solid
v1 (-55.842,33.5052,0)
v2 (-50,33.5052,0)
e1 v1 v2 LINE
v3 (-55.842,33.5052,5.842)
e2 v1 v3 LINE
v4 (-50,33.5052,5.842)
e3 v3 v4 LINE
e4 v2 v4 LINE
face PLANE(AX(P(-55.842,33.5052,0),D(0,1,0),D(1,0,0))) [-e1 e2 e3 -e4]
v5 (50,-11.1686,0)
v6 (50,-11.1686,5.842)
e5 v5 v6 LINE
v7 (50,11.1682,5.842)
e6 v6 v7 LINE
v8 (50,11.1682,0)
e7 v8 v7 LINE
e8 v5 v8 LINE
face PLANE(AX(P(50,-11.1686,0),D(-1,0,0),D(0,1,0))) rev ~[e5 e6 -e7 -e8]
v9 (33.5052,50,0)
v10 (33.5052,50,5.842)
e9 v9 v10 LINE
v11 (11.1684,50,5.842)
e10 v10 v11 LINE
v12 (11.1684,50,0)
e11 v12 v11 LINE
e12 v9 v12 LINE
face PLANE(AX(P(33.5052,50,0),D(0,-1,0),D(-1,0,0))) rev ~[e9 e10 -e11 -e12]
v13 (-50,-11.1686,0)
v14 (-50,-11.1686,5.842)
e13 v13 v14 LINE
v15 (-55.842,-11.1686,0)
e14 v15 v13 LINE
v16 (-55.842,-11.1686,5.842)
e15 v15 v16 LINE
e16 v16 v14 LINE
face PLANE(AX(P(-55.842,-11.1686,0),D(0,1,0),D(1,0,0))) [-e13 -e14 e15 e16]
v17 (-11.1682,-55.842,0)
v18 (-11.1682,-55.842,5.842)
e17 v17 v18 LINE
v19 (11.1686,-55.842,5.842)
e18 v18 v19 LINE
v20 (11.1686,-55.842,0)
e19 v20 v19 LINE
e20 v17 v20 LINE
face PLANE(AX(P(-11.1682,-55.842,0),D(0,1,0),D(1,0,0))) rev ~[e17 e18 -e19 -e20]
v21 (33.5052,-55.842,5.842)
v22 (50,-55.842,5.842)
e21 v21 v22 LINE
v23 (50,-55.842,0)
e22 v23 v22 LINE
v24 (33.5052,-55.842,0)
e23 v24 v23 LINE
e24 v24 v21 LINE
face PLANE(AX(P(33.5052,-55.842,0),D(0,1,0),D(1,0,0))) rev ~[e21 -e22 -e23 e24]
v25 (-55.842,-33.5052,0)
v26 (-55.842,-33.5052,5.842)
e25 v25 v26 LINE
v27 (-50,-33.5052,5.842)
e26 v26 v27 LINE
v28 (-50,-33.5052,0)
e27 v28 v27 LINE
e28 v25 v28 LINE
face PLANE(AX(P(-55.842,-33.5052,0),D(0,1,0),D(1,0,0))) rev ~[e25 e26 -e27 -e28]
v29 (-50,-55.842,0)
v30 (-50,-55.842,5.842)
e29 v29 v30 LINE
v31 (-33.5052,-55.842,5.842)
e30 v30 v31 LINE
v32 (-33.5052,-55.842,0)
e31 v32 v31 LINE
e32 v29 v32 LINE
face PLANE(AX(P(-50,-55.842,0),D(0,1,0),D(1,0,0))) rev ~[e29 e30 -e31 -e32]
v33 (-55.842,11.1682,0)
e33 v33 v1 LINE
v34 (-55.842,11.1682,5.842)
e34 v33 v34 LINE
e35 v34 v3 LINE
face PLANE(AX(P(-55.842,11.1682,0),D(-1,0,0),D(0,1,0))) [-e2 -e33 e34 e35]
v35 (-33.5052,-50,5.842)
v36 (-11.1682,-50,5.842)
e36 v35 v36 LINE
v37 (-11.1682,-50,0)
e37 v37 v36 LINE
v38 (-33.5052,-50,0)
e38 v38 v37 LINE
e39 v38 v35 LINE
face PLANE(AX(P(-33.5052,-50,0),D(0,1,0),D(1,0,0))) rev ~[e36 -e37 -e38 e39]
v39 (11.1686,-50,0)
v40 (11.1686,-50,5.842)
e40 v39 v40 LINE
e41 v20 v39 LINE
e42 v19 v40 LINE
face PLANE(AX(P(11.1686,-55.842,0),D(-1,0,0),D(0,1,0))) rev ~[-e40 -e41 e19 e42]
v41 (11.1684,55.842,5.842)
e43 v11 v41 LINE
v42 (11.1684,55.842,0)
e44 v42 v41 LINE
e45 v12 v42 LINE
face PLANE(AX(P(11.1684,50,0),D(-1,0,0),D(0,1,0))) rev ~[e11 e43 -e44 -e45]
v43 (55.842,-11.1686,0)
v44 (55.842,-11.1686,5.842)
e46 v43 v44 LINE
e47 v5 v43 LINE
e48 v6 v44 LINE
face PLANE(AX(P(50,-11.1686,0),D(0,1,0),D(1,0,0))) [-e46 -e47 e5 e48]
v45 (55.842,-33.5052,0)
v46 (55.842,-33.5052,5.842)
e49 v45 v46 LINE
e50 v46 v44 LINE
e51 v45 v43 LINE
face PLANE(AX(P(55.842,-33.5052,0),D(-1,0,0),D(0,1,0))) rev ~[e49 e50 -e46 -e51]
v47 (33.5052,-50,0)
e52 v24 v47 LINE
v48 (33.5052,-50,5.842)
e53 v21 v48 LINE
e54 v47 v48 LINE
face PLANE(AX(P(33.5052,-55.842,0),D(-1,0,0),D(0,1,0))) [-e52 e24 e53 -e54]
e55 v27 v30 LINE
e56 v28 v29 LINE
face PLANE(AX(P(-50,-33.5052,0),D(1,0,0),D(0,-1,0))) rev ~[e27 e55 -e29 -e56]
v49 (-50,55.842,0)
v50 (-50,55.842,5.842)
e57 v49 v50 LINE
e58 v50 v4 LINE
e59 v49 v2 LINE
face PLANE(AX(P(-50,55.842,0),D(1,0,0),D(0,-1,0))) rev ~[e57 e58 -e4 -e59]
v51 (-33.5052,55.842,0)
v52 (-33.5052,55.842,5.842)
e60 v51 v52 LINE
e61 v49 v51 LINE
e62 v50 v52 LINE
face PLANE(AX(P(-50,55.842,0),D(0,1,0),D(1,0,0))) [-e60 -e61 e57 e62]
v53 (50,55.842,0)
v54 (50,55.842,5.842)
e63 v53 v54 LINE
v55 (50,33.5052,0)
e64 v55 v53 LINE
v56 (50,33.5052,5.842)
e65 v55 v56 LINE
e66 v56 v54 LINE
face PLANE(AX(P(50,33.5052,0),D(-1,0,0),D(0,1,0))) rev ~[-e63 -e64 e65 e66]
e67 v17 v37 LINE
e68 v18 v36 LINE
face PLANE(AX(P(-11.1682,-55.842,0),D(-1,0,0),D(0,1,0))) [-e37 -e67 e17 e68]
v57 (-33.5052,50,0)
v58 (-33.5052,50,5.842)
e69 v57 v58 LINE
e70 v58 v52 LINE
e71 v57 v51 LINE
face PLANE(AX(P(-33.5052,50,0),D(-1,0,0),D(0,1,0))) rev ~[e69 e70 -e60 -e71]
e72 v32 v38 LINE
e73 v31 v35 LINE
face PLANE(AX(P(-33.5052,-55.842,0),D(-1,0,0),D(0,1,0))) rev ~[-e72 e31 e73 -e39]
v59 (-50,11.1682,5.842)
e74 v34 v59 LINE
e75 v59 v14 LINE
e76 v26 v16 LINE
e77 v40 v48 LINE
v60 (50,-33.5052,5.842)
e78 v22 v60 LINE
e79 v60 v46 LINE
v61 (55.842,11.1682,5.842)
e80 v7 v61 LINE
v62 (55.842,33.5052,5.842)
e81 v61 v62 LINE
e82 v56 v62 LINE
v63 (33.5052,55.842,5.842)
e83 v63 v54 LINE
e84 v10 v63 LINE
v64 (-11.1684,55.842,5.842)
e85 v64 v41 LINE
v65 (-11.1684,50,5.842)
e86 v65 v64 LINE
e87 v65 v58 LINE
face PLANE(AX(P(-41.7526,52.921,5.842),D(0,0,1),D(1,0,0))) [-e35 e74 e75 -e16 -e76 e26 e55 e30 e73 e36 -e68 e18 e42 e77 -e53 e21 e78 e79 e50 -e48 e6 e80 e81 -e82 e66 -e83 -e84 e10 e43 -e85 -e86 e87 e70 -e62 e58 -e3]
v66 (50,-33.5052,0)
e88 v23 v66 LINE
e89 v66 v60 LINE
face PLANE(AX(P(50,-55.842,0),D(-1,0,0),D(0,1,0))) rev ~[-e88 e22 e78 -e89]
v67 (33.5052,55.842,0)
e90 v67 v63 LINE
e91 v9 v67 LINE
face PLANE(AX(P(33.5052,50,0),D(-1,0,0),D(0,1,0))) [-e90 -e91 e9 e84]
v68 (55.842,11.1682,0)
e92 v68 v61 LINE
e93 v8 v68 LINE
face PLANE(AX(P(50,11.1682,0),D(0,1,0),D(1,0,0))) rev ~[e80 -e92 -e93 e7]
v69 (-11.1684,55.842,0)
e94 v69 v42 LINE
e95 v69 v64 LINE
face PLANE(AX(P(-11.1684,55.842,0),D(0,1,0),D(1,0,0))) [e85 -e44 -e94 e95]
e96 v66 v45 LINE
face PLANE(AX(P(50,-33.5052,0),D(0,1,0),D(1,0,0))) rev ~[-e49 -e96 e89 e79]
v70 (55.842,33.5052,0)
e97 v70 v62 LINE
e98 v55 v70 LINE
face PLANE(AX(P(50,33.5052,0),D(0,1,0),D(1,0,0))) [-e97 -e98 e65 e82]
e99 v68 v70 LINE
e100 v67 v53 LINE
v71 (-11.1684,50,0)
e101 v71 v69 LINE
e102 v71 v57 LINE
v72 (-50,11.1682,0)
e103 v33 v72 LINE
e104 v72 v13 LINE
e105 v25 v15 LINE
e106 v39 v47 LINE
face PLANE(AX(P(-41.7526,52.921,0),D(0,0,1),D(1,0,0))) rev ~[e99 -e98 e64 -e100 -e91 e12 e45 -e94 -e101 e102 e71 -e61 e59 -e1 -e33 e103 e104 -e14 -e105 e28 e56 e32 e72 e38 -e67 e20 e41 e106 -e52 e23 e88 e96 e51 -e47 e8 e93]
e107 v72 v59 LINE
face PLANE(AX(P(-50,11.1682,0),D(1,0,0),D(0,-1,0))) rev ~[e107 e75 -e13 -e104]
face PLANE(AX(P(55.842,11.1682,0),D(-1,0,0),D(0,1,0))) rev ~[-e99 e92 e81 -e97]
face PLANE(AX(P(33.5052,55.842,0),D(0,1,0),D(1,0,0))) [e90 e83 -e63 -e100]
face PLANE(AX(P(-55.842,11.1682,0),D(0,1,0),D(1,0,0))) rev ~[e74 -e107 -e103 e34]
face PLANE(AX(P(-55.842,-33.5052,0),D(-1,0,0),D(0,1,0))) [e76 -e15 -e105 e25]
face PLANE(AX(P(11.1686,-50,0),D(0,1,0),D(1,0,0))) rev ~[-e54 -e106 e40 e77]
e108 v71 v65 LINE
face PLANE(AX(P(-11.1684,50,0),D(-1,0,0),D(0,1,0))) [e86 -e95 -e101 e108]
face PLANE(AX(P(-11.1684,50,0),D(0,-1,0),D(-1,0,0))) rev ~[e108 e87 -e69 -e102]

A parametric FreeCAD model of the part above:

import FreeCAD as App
import Part
import Sketcher
Q = App.Units.Quantity

doc = App.newDocument("Part")
body = doc.addObject("PartDesign::Body", "Body")

# Sketch on XY plane
sketch1 = doc.addObject("Sketcher::SketchObject", "Sketch")
body.addObject(sketch1)
sketch1.AttachmentSupport = (doc.XY_Plane, [""])
sketch1.MapMode = "FlatFace"
sketch1.addGeometry([
    Part.LineSegment(App.Vector(-50, 56, 0), App.Vector(-50, 34, 0)),  # 0
    Part.LineSegment(App.Vector(-50, 34, 0), App.Vector(-56, 34, 0)),  # 1
    Part.LineSegment(App.Vector(-56, 34, 0), App.Vector(-56, 11, 0)),  # 2
    Part.LineSegment(App.Vector(-56, 11, 0), App.Vector(-50, 11, 0)),  # 3
    Part.LineSegment(App.Vector(-50, 11, 0), App.Vector(-50, -11, 0)),  # 4
    Part.LineSegment(App.Vector(-50, -11, 0), App.Vector(-56, -11, 0)),  # 5
    Part.LineSegment(App.Vector(-56, -11, 0), App.Vector(-56, -34, 0)),  # 6
    Part.LineSegment(App.Vector(-56, -34, 0), App.Vector(-50, -34, 0)),  # 7
    Part.LineSegment(App.Vector(-50, -34, 0), App.Vector(-50, -56, 0)),  # 8
    Part.LineSegment(App.Vector(-50, -56, 0), App.Vector(-34, -56, 0)),  # 9
    Part.LineSegment(App.Vector(-34, -56, 0), App.Vector(-34, -50, 0)),  # 10
    Part.LineSegment(App.Vector(-34, -50, 0), App.Vector(-11, -50, 0)),  # 11
    Part.LineSegment(App.Vector(-11, -50, 0), App.Vector(-11, -56, 0)),  # 12
    Part.LineSegment(App.Vector(-11, -56, 0), App.Vector(11, -56, 0)),  # 13
    Part.LineSegment(App.Vector(11, -56, 0), App.Vector(11, -50, 0)),  # 14
    Part.LineSegment(App.Vector(11, -50, 0), App.Vector(34, -50, 0)),  # 15
    Part.LineSegment(App.Vector(34, -50, 0), App.Vector(34, -56, 0)),  # 16
    Part.LineSegment(App.Vector(34, -56, 0), App.Vector(50, -56, 0)),  # 17
    Part.LineSegment(App.Vector(50, -56, 0), App.Vector(50, -34, 0)),  # 18
    Part.LineSegment(App.Vector(50, -34, 0), App.Vector(56, -34, 0)),  # 19
    Part.LineSegment(App.Vector(56, -34, 0), App.Vector(56, -11, 0)),  # 20
    Part.LineSegment(App.Vector(56, -11, 0), App.Vector(50, -11, 0)),  # 21
    Part.LineSegment(App.Vector(50, -11, 0), App.Vector(50, 11, 0)),  # 22
    Part.LineSegment(App.Vector(50, 11, 0), App.Vector(56, 11, 0)),  # 23
    Part.LineSegment(App.Vector(56, 11, 0), App.Vector(56, 34, 0)),  # 24
    Part.LineSegment(App.Vector(56, 34, 0), App.Vector(50, 34, 0)),  # 25
    Part.LineSegment(App.Vector(50, 34, 0), App.Vector(50, 56, 0)),  # 26
    Part.LineSegment(App.Vector(50, 56, 0), App.Vector(34, 56, 0)),  # 27
    Part.LineSegment(App.Vector(34, 56, 0), App.Vector(34, 50, 0)),  # 28
    Part.LineSegment(App.Vector(34, 50, 0), App.Vector(11, 50, 0)),  # 29
    Part.LineSegment(App.Vector(11, 50, 0), App.Vector(11, 56, 0)),  # 30
    Part.LineSegment(App.Vector(11, 56, 0), App.Vector(-11, 56, 0)),  # 31
    Part.LineSegment(App.Vector(-11, 56, 0), App.Vector(-11, 50, 0)),  # 32
    Part.LineSegment(App.Vector(-11, 50, 0), App.Vector(-34, 50, 0)),  # 33
    Part.LineSegment(App.Vector(-34, 50, 0), App.Vector(-34, 56, 0)),  # 34
    Part.LineSegment(App.Vector(-34, 56, 0), App.Vector(-50, 56, 0)),  # 35
], False)
sketch1.addConstraint([
    Sketcher.Constraint("Coincident", 0, 2, 1, 1),
    Sketcher.Constraint("Coincident", 1, 2, 2, 1),
    Sketcher.Constraint("Coincident", 2, 2, 3, 1),
    Sketcher.Constraint("Coincident", 3, 2, 4, 1),
    Sketcher.Constraint("Coincident", 4, 2, 5, 1),
    Sketcher.Constraint("Coincident", 5, 2, 6, 1),
    Sketcher.Constraint("Coincident", 6, 2, 7, 1),
    Sketcher.Constraint("Coincident", 7, 2, 8, 1),
    Sketcher.Constraint("Coincident", 8, 2, 9, 1),
    Sketcher.Constraint("Coincident", 9, 2, 10, 1),
    Sketcher.Constraint("Coincident", 10, 2, 11, 1),
    Sketcher.Constraint("Coincident", 11, 2, 12, 1),
    Sketcher.Constraint("Coincident", 12, 2, 13, 1),
    Sketcher.Constraint("Coincident", 13, 2, 14, 1),
    Sketcher.Constraint("Coincident", 14, 2, 15, 1),
    Sketcher.Constraint("Coincident", 15, 2, 16, 1),
    Sketcher.Constraint("Coincident", 16, 2, 17, 1),
    Sketcher.Constraint("Coincident", 17, 2, 18, 1),
    Sketcher.Constraint("Coincident", 18, 2, 19, 1),
    Sketcher.Constraint("Coincident", 19, 2, 20, 1),
    Sketcher.Constraint("Coincident", 20, 2, 21, 1),
    Sketcher.Constraint("Coincident", 21, 2, 22, 1),
    Sketcher.Constraint("Coincident", 22, 2, 23, 1),
    Sketcher.Constraint("Coincident", 23, 2, 24, 1),
    Sketcher.Constraint("Coincident", 24, 2, 25, 1),
    Sketcher.Constraint("Coincident", 25, 2, 26, 1),
    Sketcher.Constraint("Coincident", 26, 2, 27, 1),
    Sketcher.Constraint("Coincident", 27, 2, 28, 1),
    Sketcher.Constraint("Coincident", 28, 2, 29, 1),
    Sketcher.Constraint("Coincident", 29, 2, 30, 1),
    Sketcher.Constraint("Coincident", 30, 2, 31, 1),
    Sketcher.Constraint("Coincident", 31, 2, 32, 1),
    Sketcher.Constraint("Coincident", 32, 2, 33, 1),
    Sketcher.Constraint("Coincident", 33, 2, 34, 1),
    Sketcher.Constraint("Coincident", 34, 2, 35, 1),
    Sketcher.Constraint("Coincident", 35, 2, 0, 1),
    Sketcher.Constraint("Vertical", 0),
    Sketcher.Constraint("Horizontal", 1),
    Sketcher.Constraint("Vertical", 2),
    Sketcher.Constraint("Horizontal", 3),
    Sketcher.Constraint("Vertical", 4),
    Sketcher.Constraint("Horizontal", 5),
    Sketcher.Constraint("Vertical", 6),
    Sketcher.Constraint("Horizontal", 7),
    Sketcher.Constraint("Vertical", 8),
    Sketcher.Constraint("Horizontal", 9),
    Sketcher.Constraint("Vertical", 10),
    Sketcher.Constraint("Horizontal", 11),
    Sketcher.Constraint("Vertical", 12),
    Sketcher.Constraint("Horizontal", 13),
    Sketcher.Constraint("Vertical", 14),
    Sketcher.Constraint("Horizontal", 15),
    Sketcher.Constraint("Vertical", 16),
    Sketcher.Constraint("Horizontal", 17),
    Sketcher.Constraint("Vertical", 18),
    Sketcher.Constraint("Horizontal", 19),
    Sketcher.Constraint("Vertical", 20),
    Sketcher.Constraint("Horizontal", 21),
    Sketcher.Constraint("Vertical", 22),
    Sketcher.Constraint("Horizontal", 23),
    Sketcher.Constraint("Vertical", 24),
    Sketcher.Constraint("Horizontal", 25),
    Sketcher.Constraint("Vertical", 26),
    Sketcher.Constraint("Horizontal", 27),
    Sketcher.Constraint("Vertical", 28),
    Sketcher.Constraint("Horizontal", 29),
    Sketcher.Constraint("Vertical", 30),
    Sketcher.Constraint("Horizontal", 31),
    Sketcher.Constraint("Vertical", 32),
    Sketcher.Constraint("Horizontal", 33),
    Sketcher.Constraint("Vertical", 34),
    Sketcher.Constraint("Horizontal", 35),
    Sketcher.Constraint("Symmetric", 0, 2, 18, 2, -1, 1),
    Sketcher.Constraint("Symmetric", 6, 2, 24, 2, -1, 1),
    Sketcher.Constraint("Symmetric", 8, 2, 26, 2, -1, 1),
    Sketcher.Constraint("Symmetric", 10, 2, 28, 2, -1, 1),
    Sketcher.Constraint("Symmetric", 15, 2, 33, 2, -1, 1),
    Sketcher.Constraint("Symmetric", 10, 2, 15, 2, -2),
    Sketcher.Constraint("Symmetric", 8, 2, 17, 2, -2),
    Sketcher.Constraint("Symmetric", 6, 2, 19, 2, -2),
    Sketcher.Constraint("Symmetric", 4, 2, 21, 2, -2),
    Sketcher.Constraint("Symmetric", 2, 2, 23, 2, -2),
    Sketcher.Constraint("Horizontal", 9, 2, 12, 2),
    Sketcher.Constraint("Horizontal", 27, 2, 30, 2),
    Sketcher.Constraint("Horizontal", 31, 2, 34, 2),
    Sketcher.Constraint("Vertical", 0, 2, 3, 2),
    Sketcher.Constraint("Equal", 13, 29),
    Sketcher.Constraint("Equal", 29, 31),
    Sketcher.Constraint("Equal", 31, 33),
    Sketcher.Constraint("Equal", 33, 0),
    Sketcher.Constraint("Equal", 11, 2),
    Sketcher.Constraint("Equal", 0, 4),
    Sketcher.Constraint("Equal", 15, 6),
    Sketcher.Constraint("Equal", 25, 10),
    Sketcher.Constraint("DistanceX", 1, 2, 1, 1, Q("0.23 in")),
    Sketcher.Constraint("DistanceX", 9, 1, 9, 2, Q("16.4948 mm")),
    Sketcher.Constraint("DistanceX", 11, 1, 11, 2, Q("22.337 mm")),
    Sketcher.Constraint("DistanceX", 13, 1, 13, 2, Q("22.3368 mm")),
])
pad1 = doc.addObject("PartDesign::Pad", "Pad")
body.addObject(pad1)
pad1.Profile = sketch1
pad1.Length = Q("0.23 in")

doc.recompute()
